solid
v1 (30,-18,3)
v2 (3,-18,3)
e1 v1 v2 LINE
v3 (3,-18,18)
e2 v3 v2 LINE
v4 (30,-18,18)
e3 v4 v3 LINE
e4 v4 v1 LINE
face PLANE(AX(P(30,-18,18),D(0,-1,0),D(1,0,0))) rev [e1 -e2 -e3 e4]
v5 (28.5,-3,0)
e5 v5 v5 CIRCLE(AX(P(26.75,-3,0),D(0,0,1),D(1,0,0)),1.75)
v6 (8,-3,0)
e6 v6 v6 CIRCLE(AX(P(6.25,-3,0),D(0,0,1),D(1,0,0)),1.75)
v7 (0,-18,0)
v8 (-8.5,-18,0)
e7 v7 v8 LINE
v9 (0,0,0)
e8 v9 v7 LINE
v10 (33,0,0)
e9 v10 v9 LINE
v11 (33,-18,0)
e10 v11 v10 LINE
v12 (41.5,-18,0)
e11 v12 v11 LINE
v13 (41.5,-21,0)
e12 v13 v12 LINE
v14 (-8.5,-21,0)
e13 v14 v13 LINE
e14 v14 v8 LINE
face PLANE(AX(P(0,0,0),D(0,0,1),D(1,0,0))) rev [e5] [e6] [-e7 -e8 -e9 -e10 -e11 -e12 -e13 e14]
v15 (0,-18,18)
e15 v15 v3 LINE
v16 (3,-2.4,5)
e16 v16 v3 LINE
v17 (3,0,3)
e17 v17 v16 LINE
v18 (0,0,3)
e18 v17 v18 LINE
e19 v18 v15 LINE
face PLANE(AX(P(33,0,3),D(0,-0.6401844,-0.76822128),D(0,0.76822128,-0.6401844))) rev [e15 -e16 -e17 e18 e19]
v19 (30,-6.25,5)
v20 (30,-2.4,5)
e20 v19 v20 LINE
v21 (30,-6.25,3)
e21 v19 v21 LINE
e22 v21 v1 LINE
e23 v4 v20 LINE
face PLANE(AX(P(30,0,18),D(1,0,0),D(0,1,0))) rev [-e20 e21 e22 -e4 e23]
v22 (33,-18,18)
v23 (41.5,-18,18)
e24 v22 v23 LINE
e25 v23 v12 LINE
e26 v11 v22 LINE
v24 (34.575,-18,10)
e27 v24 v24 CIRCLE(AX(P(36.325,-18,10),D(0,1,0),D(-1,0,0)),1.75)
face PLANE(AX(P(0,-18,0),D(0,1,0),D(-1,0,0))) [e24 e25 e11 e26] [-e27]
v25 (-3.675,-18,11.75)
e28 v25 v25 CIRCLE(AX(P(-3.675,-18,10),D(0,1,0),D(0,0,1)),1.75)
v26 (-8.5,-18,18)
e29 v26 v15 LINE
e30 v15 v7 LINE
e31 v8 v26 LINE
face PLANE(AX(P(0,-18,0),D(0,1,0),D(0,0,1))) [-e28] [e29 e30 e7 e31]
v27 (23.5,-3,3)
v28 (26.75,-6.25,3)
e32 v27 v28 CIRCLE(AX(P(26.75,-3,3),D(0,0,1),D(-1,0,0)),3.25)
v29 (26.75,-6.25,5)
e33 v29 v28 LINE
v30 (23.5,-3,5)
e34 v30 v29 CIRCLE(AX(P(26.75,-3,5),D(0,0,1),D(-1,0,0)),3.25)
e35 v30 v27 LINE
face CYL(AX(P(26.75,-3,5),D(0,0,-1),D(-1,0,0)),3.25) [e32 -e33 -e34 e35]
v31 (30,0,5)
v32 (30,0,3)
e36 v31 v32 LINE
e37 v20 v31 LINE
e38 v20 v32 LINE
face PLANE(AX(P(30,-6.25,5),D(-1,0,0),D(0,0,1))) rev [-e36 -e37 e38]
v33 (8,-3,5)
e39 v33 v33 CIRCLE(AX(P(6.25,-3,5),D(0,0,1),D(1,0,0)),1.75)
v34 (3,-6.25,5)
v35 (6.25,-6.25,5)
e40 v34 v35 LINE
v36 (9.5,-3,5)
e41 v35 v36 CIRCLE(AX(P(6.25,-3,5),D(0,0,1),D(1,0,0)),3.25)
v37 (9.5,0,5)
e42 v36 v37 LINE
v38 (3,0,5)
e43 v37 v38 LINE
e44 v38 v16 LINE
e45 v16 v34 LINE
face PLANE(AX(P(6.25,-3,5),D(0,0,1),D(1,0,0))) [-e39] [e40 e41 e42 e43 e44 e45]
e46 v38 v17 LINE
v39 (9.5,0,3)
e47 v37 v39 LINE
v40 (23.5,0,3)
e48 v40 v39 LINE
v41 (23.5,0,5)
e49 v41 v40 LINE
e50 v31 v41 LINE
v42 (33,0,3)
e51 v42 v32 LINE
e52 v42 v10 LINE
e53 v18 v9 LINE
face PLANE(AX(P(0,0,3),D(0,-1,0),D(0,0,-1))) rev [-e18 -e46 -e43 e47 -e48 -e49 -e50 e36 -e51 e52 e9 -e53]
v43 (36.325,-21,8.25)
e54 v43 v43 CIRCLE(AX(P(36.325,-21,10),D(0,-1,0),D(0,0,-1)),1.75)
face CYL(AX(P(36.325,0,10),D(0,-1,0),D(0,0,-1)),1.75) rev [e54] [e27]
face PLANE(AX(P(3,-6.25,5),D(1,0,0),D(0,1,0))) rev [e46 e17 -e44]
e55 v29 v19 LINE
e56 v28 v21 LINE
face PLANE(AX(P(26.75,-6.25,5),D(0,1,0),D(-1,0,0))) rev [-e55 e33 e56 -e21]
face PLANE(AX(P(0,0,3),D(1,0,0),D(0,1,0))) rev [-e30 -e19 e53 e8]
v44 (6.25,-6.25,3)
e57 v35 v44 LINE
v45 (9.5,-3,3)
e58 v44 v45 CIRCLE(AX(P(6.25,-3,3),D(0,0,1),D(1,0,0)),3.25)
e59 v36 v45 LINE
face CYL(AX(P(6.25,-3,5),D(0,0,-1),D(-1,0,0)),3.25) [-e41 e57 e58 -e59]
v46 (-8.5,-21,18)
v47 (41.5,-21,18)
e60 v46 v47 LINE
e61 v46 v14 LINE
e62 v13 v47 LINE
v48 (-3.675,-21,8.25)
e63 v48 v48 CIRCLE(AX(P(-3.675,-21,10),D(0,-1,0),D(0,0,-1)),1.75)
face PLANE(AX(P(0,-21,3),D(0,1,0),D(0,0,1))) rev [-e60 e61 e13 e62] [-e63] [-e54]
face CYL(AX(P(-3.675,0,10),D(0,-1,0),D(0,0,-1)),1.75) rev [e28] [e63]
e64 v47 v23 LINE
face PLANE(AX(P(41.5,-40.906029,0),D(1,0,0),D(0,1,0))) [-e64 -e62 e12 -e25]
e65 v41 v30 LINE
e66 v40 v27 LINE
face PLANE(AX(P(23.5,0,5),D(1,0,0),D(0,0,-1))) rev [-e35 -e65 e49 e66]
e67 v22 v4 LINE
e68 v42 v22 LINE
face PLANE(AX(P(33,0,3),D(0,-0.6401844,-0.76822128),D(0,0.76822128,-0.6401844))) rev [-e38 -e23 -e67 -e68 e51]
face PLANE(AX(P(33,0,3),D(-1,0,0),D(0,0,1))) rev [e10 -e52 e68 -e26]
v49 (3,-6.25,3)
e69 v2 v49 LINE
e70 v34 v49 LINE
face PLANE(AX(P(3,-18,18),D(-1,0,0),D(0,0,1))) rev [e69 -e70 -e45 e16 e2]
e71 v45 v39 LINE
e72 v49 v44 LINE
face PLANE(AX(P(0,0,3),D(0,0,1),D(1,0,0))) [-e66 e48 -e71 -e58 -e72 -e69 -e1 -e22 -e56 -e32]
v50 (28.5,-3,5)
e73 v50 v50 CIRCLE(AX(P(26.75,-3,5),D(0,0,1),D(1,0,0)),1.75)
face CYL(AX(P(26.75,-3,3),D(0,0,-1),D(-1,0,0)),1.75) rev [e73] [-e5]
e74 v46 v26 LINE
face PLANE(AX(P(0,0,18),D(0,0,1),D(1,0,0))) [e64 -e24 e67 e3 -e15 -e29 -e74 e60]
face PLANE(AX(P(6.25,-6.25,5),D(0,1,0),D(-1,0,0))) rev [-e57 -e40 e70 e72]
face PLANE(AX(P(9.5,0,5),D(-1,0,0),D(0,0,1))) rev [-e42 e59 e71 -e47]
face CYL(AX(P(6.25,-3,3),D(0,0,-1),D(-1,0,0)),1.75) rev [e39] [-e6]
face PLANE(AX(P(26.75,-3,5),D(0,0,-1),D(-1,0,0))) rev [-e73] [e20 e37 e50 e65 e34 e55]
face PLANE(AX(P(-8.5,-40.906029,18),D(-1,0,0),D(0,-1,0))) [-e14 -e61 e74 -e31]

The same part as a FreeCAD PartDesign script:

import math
import FreeCAD as App
import Part
import Sketcher

V = App.Vector

doc = App.newDocument("Part")
body = doc.addObject("PartDesign::Body", "Body")

sketch1 = doc.addObject("Sketcher::SketchObject", "Sketch")
body.addObject(sketch1)
sketch1.AttachmentSupport = (doc.XY_Plane, [""])
sketch1.MapMode = "FlatFace"
sketch1.addGeometry([
    Part.LineSegment(V(0, 0, 0), V(0, -21, 0)),
    Part.LineSegment(V(0, -21, 0), V(33, -21, 0)),
    Part.LineSegment(V(33, -21, 0), V(33, 0, 0)),
    Part.LineSegment(V(33, 0, 0), V(0, 0, 0)),
    Part.Circle(V(6.2, -3, 0), V(0, 0, 1), 1.8),
    Part.Circle(V(26.8, -3, 0), V(0, 0, 1), 1.8),
], False)
sketch1.addConstraint([
    Sketcher.Constraint("Coincident", 0, 2, 1, 1),
    Sketcher.Constraint("Coincident", 1, 2, 2, 1),
    Sketcher.Constraint("Coincident", 2, 2, 3, 1),
    Sketcher.Constraint("Coincident", 3, 2, 0, 1),
    Sketcher.Constraint("Vertical", 0),
    Sketcher.Constraint("Horizontal", 1),
    Sketcher.Constraint("Vertical", 2),
    Sketcher.Constraint("Horizontal", 3),
    Sketcher.Constraint("Coincident", 3, 2, -1, 1),
    Sketcher.Constraint("Equal", 4, 5),
    Sketcher.Constraint("Horizontal", 4, 3, 5, 3),
    Sketcher.Constraint("Diameter", 4, 3.5),
    Sketcher.Constraint("DistanceX", 1, 1, 1, 2, 33.0),
    Sketcher.Constraint("DistanceY", 0, 2, 0, 1, 21.0),
    Sketcher.Constraint("DistanceY", 4, 3, -1, 1, 3.0),
    Sketcher.Constraint("DistanceX", 4, 3, 5, 3, 20.5),
    Sketcher.Constraint("DistanceX", -1, 1, 4, 3, 6.25),
])
pad1 = doc.addObject("PartDesign::Pad", "Pad")
body.addObject(pad1)
pad1.Profile = sketch1
pad1.Length = 3

sketch2 = doc.addObject("Sketcher::SketchObject", "Sketch001")
body.addObject(sketch2)
sketch2.AttachmentSupport = (doc.XY_Plane, [""])
sketch2.MapMode = "FlatFace"
sketch2.AttachmentOffset = App.Placement(V(0, 0, 3), App.Rotation())
sketch2.addGeometry([
    Part.LineSegment(V(0, 0, 0), V(0, -21, 0)),
    Part.LineSegment(V(0, -21, 0), V(33, -21, 0)),
    Part.LineSegment(V(33, -21, 0), V(33, 0, 0)),
    Part.LineSegment(V(33, 0, 0), V(30, 0, 0)),
    Part.LineSegment(V(30, 0, 0), V(30, -18, 0)),
    Part.LineSegment(V(30, -18, 0), V(3, -18, 0)),
    Part.LineSegment(V(3, -18, 0), V(3, 0, 0)),
    Part.LineSegment(V(3, 0, 0), V(0, 0, 0)),
], False)
sketch2.addConstraint([
    Sketcher.Constraint("Coincident", 0, 2, 1, 1),
    Sketcher.Constraint("Coincident", 1, 2, 2, 1),
    Sketcher.Constraint("Coincident", 2, 2, 3, 1),
    Sketcher.Constraint("Coincident", 3, 2, 4, 1),
    Sketcher.Constraint("Coincident", 4, 2, 5, 1),
    Sketcher.Constraint("Coincident", 5, 2, 6, 1),
    Sketcher.Constraint("Coincident", 6, 2, 7, 1),
    Sketcher.Constraint("Coincident", 7, 2, 0, 1),
    Sketcher.Constraint("Vertical", 0),
    Sketcher.Constraint("Horizontal", 1),
    Sketcher.Constraint("Vertical", 2),
    Sketcher.Constraint("Horizontal", 3),
    Sketcher.Constraint("Vertical", 4),
    Sketcher.Constraint("Horizontal", 5),
    Sketcher.Constraint("Vertical", 6),
    Sketcher.Constraint("Horizontal", 7),
    Sketcher.Constraint("Coincident", 7, 2, -1, 1),
    Sketcher.Constraint("PointOnObject", 2, 2, -1),
    Sketcher.Constraint("Equal", 3, 7),
    Sketcher.Constraint("DistanceX", 1, 1, 1, 2, 33.0),
    Sketcher.Constraint("DistanceX", 3, 2, 3, 1, 3.0),
    Sketcher.Constraint("DistanceY", 0, 2, 0, 1, 21.0),
    Sketcher.Constraint("DistanceY", 4, 2, 4, 1, 18.0),
])
pad2 = doc.addObject("PartDesign::Pad", "Pad001")
body.addObject(pad2)
pad2.Profile = sketch2
pad2.Length = 15

sketch3 = doc.addObject("Sketcher::SketchObject", "Sketch002")
body.addObject(sketch3)
sketch3.AttachmentSupport = (doc.YZ_Plane, [""])
sketch3.MapMode = "FlatFace"
sketch3.addGeometry([
    Part.LineSegment(V(0, 3, 0), V(-18, 18, 0)),
    Part.LineSegment(V(-18, 18, 0), V(0, 18, 0)),
    Part.LineSegment(V(0, 18, 0), V(0, 3, 0)),
], False)
sketch3.addConstraint([
    Sketcher.Constraint("Coincident", 0, 2, 1, 1),
    Sketcher.Constraint("Coincident", 1, 2, 2, 1),
    Sketcher.Constraint("Coincident", 2, 2, 0, 1),
    Sketcher.Constraint("Horizontal", 1),
    Sketcher.Constraint("Vertical", 2),
    Sketcher.Constraint("PointOnObject", 1, 2, -2),
    Sketcher.Constraint("DistanceX", 1, 1, 1, 2, 18.0),
    Sketcher.Constraint("DistanceY", 2, 2, 2, 1, 15.0),
    Sketcher.Constraint("DistanceY", -1, 1, 0, 2, 18.0),
])
pocket1 = doc.addObject("PartDesign::Pocket", "Pocket")
body.addObject(pocket1)
pocket1.Profile = sketch3
pocket1.Type = "ThroughAll"
pocket1.Reversed = True

sketch4 = doc.addObject("Sketcher::SketchObject", "Sketch003")
body.addObject(sketch4)
sketch4.AttachmentSupport = (doc.XZ_Plane, [""])
sketch4.MapMode = "FlatFace"
sketch4.AttachmentOffset = App.Placement(V(0, 0, 18), App.Rotation())
sketch4.addGeometry([
    Part.LineSegment(V(-8, 0, 0), V(-8, 18, 0)),
    Part.LineSegment(V(-8, 18, 0), V(0, 18, 0)),
    Part.LineSegment(V(0, 18, 0), V(0, 0, 0)),
    Part.LineSegment(V(0, 0, 0), V(-8, 0, 0)),
    Part.LineSegment(V(33, 0, 0), V(33, 18, 0)),
    Part.LineSegment(V(33, 18, 0), V(42, 18, 0)),
    Part.LineSegment(V(42, 18, 0), V(42, 0, 0)),
    Part.LineSegment(V(42, 0, 0), V(33, 0, 0)),
], False)
sketch4.addConstraint([
    Sketcher.Constraint("Coincident", 0, 2, 1, 1),
    Sketcher.Constraint("Coincident", 1, 2, 2, 1),
    Sketcher.Constraint("Coincident", 2, 2, 3, 1),
    Sketcher.Constraint("Coincident", 3, 2, 0, 1),
    Sketcher.Constraint("Coincident", 4, 2, 5, 1),
    Sketcher.Constraint("Coincident", 5, 2, 6, 1),
    Sketcher.Constraint("Coincident", 6, 2, 7, 1),
    Sketcher.Constraint("Coincident", 7, 2, 4, 1),
    Sketcher.Constraint("Vertical", 0),
    Sketcher.Constraint("Horizontal", 1),
    Sketcher.Constraint("Vertical", 2),
    Sketcher.Constraint("Horizontal", 3),
    Sketcher.Constraint("Vertical", 4),
    Sketcher.Constraint("Horizontal", 5),
    Sketcher.Constraint("Vertical", 6),
    Sketcher.Constraint("Horizontal", 7),
    Sketcher.Constraint("Coincident", 2, 2, -1, 1),
    Sketcher.Constraint("PointOnObject", 6, 2, -1),
    Sketcher.Constraint("Horizontal", 1, 2, 4, 2),
    Sketcher.Constraint("Equal", 3, 5),
    Sketcher.Constraint("DistanceY", 0, 1, 0, 2, 18.0),
    Sketcher.Constraint("DistanceX", 1, 1, 1, 2, 8.5),
    Sketcher.Constraint("DistanceX", -1, 1, 4, 2, 33.0),
])
pad3 = doc.addObject("PartDesign::Pad", "Pad002")
body.addObject(pad3)
pad3.Profile = sketch4
pad3.Length = 3

sketch5 = doc.addObject("Sketcher::SketchObject", "Sketch004")
body.addObject(sketch5)
sketch5.AttachmentSupport = (doc.XY_Plane, [""])
sketch5.MapMode = "FlatFace"
sketch5.AttachmentOffset = App.Placement(V(0, 0, 3), App.Rotation())
sketch5.addGeometry([
    Part.LineSegment(V(3, -6.2, 0), V(6.2, -6.2, 0)),
    Part.ArcOfCircle(Part.Circle(V(6.2, -3, 0), V(0, 0, 1), 3.2), math.radians(-90), math.radians(0)),
    Part.LineSegment(V(9.5, -3, 0), V(9.5, 0, 0)),
    Part.LineSegment(V(9.5, 0, 0), V(3, 0, 0)),
    Part.LineSegment(V(3, 0, 0), V(3, -6.2, 0)),
    Part.Circle(V(6.2, -3, 0), V(0, 0, 1), 1.8),
    Part.LineSegment(V(23.5, 0, 0), V(23.5, -3, 0)),
    Part.ArcOfCircle(Part.Circle(V(26.8, -3, 0), V(0, 0, 1), 3.2), math.radians(180), math.radians(270)),
    Part.LineSegment(V(26.8, -6.2, 0), V(30, -6.2, 0)),
    Part.LineSegment(V(30, -6.2, 0), V(30, 0, 0)),
    Part.LineSegment(V(30, 0, 0), V(23.5, 0, 0)),
    Part.Circle(V(26.8, -3, 0), V(0, 0, 1), 1.8),
], False)
sketch5.addConstraint([
    Sketcher.Constraint("Tangent", 0, 2, 1, 1),
    Sketcher.Constraint("Tangent", 1, 2, 2, 1),
    Sketcher.Constraint("Coincident", 2, 2, 3, 1),
    Sketcher.Constraint("Coincident", 3, 2, 4, 1),
    Sketcher.Constraint("Coincident", 4, 2, 0, 1),
    Sketcher.Constraint("Tangent", 6, 2, 7, 1),
    Sketcher.Constraint("Tangent", 7, 2, 8, 1),
    Sketcher.Constraint("Coincident", 8, 2, 9, 1),
    Sketcher.Constraint("Coincident", 9, 2, 10, 1),
    Sketcher.Constraint("Coincident", 10, 2, 6, 1),
    Sketcher.Constraint("Horizontal", 0),
    Sketcher.Constraint("Vertical", 2),
    Sketcher.Constraint("Horizontal", 3),
    Sketcher.Constraint("Vertical", 4),
    Sketcher.Constraint("Vertical", 6),
    Sketcher.Constraint("Horizontal", 8),
    Sketcher.Constraint("Vertical", 9),
    Sketcher.Constraint("Horizontal", 10),
    Sketcher.Constraint("Coincident", 5, 3, 1, 3),
    Sketcher.Constraint("Coincident", 11, 3, 7, 3),
    Sketcher.Constraint("Equal", 1, 7),
    Sketcher.Constraint("Equal", 5, 11),
    Sketcher.Constraint("PointOnObject", 2, 2, -1),
    Sketcher.Constraint("PointOnObject", 9, 2, -1),
    Sketcher.Constraint("Horizontal", 5, 3, 7, 3),
    Sketcher.Constraint("Equal", 0, 8),
    Sketcher.Constraint("Diameter", 5, 3.5),
    Sketcher.Constraint("DistanceY", 2, 1, 2, 2, 3.0),
    Sketcher.Constraint("Radius", 1, 3.25),
    Sketcher.Constraint("DistanceX", 3, 2, 3, 1, 6.5),
    Sketcher.Constraint("DistanceX", -1, 1, 3, 2, 3.0),
    Sketcher.Constraint("DistanceX", -1, 1, 8, 2, 30.0),
])
pad4 = doc.addObject("PartDesign::Pad", "Pad003")
body.addObject(pad4)
pad4.Profile = sketch5
pad4.Length = 2

sketch6 = doc.addObject("Sketcher::SketchObject", "Sketch005")
body.addObject(sketch6)
sketch6.AttachmentSupport = (doc.XZ_Plane, [""])
sketch6.MapMode = "FlatFace"
sketch6.AttachmentOffset = App.Placement(V(0, 0, 21), App.Rotation())
sketch6.addGeometry([
    Part.Circle(V(-3.7, 10, 0), V(0, 0, 1), 1.8),
    Part.Circle(V(36.3, 10, 0), V(0, 0, 1), 1.8),
], False)
sketch6.addConstraint([
    Sketcher.Constraint("Equal", 0, 1),
    Sketcher.Constraint("Horizontal", 0, 3, 1, 3),
    Sketcher.Constraint("Diameter", 0, 3.5),
    Sketcher.Constraint("DistanceY", -1, 1, 0, 3, 10.0),
    Sketcher.Constraint("DistanceX", 0, 3, 1, 3, 40.0),
    Sketcher.Constraint("DistanceX", 0, 3, -1, 1, 3.675),
])
pocket2 = doc.addObject("PartDesign::Pocket", "Pocket001")
body.addObject(pocket2)
pocket2.Profile = sketch6
pocket2.Type = "ThroughAll"

doc.recompute()
